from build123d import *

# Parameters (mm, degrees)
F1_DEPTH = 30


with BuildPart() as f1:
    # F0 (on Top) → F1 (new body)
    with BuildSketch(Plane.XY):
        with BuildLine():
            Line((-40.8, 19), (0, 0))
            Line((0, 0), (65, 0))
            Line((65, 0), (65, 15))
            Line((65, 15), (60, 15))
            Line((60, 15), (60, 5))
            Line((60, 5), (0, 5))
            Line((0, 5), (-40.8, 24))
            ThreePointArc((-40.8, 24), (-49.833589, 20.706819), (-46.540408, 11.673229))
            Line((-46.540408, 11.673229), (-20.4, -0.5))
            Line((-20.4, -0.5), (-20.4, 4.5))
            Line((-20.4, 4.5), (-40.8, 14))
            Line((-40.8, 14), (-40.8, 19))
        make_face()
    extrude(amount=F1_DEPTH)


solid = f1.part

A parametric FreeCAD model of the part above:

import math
import FreeCAD as App
import Part
import Sketcher

V = App.Vector
Q = App.Units.Quantity

doc = App.newDocument("Part")
params = doc.addObject("Spreadsheet::Sheet", "Params")
for row, (alias, value) in enumerate([
    ("sketch1_width", "65 mm"),
    ("sketch1_width2", "5 mm"),
    ("sketch1_height", "15 mm"),
    ("sketch1_height2", "10 mm"),
    ("pad1_length", "30 mm"),
], start=1):
    params.set(f"A{row}", alias)
    params.set(f"B{row}", "=" + value)
    params.setAlias(f"B{row}", alias)

body = doc.addObject("PartDesign::Body", "Body")

sketch1 = doc.addObject("Sketcher::SketchObject", "Sketch")
body.addObject(sketch1)
sketch1.AttachmentSupport = (doc.XY_Plane, [""])
sketch1.MapMode = "FlatFace"
sketch1.addGeometry([
    Part.LineSegment(V(-41, 19, 0), V(0, 0, 0)),
    Part.LineSegment(V(0, 0, 0), V(65, 0, 0)),
    Part.LineSegment(V(65, 0, 0), V(65, 15, 0)),
    Part.LineSegment(V(65, 15, 0), V(60, 15, 0)),
    Part.LineSegment(V(60, 15, 0), V(60, 5, 0)),
    Part.LineSegment(V(60, 5, 0), V(0, 5, 0)),
    Part.LineSegment(V(0, 5, 0), V(-41, 24, 0)),
    Part.ArcOfCircle(Part.Circle(V(-44, 18, 0), V(0, 0, 1), 7), math.radians(65), math.radians(245)),
    Part.LineSegment(V(-47, 12, 0), V(-20, 0, 0)),
    Part.LineSegment(V(-20, 0, 0), V(-20, 4, 0)),
    Part.LineSegment(V(-20, 4, 0), V(-41, 14, 0)),
    Part.LineSegment(V(-41, 14, 0), V(-41, 19, 0)),
], False)
sketch1.addConstraint([
    Sketcher.Constraint("Coincident", 0, 2, 1, 1),
    Sketcher.Constraint("Coincident", 1, 2, 2, 1),
    Sketcher.Constraint("Coincident", 2, 2, 3, 1),
    Sketcher.Constraint("Coincident", 3, 2, 4, 1),
    Sketcher.Constraint("Coincident", 4, 2, 5, 1),
    Sketcher.Constraint("Coincident", 5, 2, 6, 1),
    Sketcher.Constraint("Tangent", 6, 2, 7, 1),
    Sketcher.Constraint("Tangent", 7, 2, 8, 1),
    Sketcher.Constraint("Coincident", 8, 2, 9, 1),
    Sketcher.Constraint("Coincident", 9, 2, 10, 1),
    Sketcher.Constraint("Coincident", 10, 2, 11, 1),
    Sketcher.Constraint("Coincident", 11, 2, 0, 1),
    Sketcher.Constraint("Horizontal", 1),
    Sketcher.Constraint("Vertical", 2),
    Sketcher.Constraint("Horizontal", 3),
    Sketcher.Constraint("Vertical", 4),
    Sketcher.Constraint("Horizontal", 5),
    Sketcher.Constraint("Vertical", 9),
    Sketcher.Constraint("Vertical", 11),
    Sketcher.Constraint("Coincident", 0, 2, -1, 1),
    Sketcher.Constraint("PointOnObject", 5, 2, -2),
    Sketcher.Constraint("Parallel", 0, 6),
    Sketcher.Constraint("Parallel", 6, 8),
    Sketcher.Constraint("Parallel", 8, 10),
    Sketcher.Constraint("Vertical", 6, 2, 10, 2),
    Sketcher.Constraint("Equal", 3, 9),
    Sketcher.Constraint("Equal", 9, 11),
    Sketcher.Constraint("DistanceX", 1, 1, 1, 2, Q("65 mm")),
    Sketcher.Constraint("DistanceX", 3, 2, 3, 1, Q("5 mm")),
    Sketcher.Constraint("DistanceY", 2, 1, 2, 2, Q("15 mm")),
    Sketcher.Constraint("DistanceY", 4, 2, 4, 1, Q("10 mm")),
    Sketcher.Constraint("DistanceY", -1, 1, 6, 2, Q("24 mm")),
    Sketcher.Constraint("DistanceX", 6, 2, -1, 1, Q("40.8 mm")),
    Sketcher.Constraint("DistanceX", 8, 2, -1, 1, Q("20.4 mm")),
])
sketch1.setExpression("Constraints[27]", "Params.sketch1_width")
sketch1.setExpression("Constraints[28]", "Params.sketch1_width2")
sketch1.setExpression("Constraints[29]", "Params.sketch1_height")
sketch1.setExpression("Constraints[30]", "Params.sketch1_height2")
pad1 = doc.addObject("PartDesign::Pad", "Pad")
body.addObject(pad1)
pad1.Profile = sketch1
pad1.setExpression("Length", "Params.pad1_length")

doc.recompute()
